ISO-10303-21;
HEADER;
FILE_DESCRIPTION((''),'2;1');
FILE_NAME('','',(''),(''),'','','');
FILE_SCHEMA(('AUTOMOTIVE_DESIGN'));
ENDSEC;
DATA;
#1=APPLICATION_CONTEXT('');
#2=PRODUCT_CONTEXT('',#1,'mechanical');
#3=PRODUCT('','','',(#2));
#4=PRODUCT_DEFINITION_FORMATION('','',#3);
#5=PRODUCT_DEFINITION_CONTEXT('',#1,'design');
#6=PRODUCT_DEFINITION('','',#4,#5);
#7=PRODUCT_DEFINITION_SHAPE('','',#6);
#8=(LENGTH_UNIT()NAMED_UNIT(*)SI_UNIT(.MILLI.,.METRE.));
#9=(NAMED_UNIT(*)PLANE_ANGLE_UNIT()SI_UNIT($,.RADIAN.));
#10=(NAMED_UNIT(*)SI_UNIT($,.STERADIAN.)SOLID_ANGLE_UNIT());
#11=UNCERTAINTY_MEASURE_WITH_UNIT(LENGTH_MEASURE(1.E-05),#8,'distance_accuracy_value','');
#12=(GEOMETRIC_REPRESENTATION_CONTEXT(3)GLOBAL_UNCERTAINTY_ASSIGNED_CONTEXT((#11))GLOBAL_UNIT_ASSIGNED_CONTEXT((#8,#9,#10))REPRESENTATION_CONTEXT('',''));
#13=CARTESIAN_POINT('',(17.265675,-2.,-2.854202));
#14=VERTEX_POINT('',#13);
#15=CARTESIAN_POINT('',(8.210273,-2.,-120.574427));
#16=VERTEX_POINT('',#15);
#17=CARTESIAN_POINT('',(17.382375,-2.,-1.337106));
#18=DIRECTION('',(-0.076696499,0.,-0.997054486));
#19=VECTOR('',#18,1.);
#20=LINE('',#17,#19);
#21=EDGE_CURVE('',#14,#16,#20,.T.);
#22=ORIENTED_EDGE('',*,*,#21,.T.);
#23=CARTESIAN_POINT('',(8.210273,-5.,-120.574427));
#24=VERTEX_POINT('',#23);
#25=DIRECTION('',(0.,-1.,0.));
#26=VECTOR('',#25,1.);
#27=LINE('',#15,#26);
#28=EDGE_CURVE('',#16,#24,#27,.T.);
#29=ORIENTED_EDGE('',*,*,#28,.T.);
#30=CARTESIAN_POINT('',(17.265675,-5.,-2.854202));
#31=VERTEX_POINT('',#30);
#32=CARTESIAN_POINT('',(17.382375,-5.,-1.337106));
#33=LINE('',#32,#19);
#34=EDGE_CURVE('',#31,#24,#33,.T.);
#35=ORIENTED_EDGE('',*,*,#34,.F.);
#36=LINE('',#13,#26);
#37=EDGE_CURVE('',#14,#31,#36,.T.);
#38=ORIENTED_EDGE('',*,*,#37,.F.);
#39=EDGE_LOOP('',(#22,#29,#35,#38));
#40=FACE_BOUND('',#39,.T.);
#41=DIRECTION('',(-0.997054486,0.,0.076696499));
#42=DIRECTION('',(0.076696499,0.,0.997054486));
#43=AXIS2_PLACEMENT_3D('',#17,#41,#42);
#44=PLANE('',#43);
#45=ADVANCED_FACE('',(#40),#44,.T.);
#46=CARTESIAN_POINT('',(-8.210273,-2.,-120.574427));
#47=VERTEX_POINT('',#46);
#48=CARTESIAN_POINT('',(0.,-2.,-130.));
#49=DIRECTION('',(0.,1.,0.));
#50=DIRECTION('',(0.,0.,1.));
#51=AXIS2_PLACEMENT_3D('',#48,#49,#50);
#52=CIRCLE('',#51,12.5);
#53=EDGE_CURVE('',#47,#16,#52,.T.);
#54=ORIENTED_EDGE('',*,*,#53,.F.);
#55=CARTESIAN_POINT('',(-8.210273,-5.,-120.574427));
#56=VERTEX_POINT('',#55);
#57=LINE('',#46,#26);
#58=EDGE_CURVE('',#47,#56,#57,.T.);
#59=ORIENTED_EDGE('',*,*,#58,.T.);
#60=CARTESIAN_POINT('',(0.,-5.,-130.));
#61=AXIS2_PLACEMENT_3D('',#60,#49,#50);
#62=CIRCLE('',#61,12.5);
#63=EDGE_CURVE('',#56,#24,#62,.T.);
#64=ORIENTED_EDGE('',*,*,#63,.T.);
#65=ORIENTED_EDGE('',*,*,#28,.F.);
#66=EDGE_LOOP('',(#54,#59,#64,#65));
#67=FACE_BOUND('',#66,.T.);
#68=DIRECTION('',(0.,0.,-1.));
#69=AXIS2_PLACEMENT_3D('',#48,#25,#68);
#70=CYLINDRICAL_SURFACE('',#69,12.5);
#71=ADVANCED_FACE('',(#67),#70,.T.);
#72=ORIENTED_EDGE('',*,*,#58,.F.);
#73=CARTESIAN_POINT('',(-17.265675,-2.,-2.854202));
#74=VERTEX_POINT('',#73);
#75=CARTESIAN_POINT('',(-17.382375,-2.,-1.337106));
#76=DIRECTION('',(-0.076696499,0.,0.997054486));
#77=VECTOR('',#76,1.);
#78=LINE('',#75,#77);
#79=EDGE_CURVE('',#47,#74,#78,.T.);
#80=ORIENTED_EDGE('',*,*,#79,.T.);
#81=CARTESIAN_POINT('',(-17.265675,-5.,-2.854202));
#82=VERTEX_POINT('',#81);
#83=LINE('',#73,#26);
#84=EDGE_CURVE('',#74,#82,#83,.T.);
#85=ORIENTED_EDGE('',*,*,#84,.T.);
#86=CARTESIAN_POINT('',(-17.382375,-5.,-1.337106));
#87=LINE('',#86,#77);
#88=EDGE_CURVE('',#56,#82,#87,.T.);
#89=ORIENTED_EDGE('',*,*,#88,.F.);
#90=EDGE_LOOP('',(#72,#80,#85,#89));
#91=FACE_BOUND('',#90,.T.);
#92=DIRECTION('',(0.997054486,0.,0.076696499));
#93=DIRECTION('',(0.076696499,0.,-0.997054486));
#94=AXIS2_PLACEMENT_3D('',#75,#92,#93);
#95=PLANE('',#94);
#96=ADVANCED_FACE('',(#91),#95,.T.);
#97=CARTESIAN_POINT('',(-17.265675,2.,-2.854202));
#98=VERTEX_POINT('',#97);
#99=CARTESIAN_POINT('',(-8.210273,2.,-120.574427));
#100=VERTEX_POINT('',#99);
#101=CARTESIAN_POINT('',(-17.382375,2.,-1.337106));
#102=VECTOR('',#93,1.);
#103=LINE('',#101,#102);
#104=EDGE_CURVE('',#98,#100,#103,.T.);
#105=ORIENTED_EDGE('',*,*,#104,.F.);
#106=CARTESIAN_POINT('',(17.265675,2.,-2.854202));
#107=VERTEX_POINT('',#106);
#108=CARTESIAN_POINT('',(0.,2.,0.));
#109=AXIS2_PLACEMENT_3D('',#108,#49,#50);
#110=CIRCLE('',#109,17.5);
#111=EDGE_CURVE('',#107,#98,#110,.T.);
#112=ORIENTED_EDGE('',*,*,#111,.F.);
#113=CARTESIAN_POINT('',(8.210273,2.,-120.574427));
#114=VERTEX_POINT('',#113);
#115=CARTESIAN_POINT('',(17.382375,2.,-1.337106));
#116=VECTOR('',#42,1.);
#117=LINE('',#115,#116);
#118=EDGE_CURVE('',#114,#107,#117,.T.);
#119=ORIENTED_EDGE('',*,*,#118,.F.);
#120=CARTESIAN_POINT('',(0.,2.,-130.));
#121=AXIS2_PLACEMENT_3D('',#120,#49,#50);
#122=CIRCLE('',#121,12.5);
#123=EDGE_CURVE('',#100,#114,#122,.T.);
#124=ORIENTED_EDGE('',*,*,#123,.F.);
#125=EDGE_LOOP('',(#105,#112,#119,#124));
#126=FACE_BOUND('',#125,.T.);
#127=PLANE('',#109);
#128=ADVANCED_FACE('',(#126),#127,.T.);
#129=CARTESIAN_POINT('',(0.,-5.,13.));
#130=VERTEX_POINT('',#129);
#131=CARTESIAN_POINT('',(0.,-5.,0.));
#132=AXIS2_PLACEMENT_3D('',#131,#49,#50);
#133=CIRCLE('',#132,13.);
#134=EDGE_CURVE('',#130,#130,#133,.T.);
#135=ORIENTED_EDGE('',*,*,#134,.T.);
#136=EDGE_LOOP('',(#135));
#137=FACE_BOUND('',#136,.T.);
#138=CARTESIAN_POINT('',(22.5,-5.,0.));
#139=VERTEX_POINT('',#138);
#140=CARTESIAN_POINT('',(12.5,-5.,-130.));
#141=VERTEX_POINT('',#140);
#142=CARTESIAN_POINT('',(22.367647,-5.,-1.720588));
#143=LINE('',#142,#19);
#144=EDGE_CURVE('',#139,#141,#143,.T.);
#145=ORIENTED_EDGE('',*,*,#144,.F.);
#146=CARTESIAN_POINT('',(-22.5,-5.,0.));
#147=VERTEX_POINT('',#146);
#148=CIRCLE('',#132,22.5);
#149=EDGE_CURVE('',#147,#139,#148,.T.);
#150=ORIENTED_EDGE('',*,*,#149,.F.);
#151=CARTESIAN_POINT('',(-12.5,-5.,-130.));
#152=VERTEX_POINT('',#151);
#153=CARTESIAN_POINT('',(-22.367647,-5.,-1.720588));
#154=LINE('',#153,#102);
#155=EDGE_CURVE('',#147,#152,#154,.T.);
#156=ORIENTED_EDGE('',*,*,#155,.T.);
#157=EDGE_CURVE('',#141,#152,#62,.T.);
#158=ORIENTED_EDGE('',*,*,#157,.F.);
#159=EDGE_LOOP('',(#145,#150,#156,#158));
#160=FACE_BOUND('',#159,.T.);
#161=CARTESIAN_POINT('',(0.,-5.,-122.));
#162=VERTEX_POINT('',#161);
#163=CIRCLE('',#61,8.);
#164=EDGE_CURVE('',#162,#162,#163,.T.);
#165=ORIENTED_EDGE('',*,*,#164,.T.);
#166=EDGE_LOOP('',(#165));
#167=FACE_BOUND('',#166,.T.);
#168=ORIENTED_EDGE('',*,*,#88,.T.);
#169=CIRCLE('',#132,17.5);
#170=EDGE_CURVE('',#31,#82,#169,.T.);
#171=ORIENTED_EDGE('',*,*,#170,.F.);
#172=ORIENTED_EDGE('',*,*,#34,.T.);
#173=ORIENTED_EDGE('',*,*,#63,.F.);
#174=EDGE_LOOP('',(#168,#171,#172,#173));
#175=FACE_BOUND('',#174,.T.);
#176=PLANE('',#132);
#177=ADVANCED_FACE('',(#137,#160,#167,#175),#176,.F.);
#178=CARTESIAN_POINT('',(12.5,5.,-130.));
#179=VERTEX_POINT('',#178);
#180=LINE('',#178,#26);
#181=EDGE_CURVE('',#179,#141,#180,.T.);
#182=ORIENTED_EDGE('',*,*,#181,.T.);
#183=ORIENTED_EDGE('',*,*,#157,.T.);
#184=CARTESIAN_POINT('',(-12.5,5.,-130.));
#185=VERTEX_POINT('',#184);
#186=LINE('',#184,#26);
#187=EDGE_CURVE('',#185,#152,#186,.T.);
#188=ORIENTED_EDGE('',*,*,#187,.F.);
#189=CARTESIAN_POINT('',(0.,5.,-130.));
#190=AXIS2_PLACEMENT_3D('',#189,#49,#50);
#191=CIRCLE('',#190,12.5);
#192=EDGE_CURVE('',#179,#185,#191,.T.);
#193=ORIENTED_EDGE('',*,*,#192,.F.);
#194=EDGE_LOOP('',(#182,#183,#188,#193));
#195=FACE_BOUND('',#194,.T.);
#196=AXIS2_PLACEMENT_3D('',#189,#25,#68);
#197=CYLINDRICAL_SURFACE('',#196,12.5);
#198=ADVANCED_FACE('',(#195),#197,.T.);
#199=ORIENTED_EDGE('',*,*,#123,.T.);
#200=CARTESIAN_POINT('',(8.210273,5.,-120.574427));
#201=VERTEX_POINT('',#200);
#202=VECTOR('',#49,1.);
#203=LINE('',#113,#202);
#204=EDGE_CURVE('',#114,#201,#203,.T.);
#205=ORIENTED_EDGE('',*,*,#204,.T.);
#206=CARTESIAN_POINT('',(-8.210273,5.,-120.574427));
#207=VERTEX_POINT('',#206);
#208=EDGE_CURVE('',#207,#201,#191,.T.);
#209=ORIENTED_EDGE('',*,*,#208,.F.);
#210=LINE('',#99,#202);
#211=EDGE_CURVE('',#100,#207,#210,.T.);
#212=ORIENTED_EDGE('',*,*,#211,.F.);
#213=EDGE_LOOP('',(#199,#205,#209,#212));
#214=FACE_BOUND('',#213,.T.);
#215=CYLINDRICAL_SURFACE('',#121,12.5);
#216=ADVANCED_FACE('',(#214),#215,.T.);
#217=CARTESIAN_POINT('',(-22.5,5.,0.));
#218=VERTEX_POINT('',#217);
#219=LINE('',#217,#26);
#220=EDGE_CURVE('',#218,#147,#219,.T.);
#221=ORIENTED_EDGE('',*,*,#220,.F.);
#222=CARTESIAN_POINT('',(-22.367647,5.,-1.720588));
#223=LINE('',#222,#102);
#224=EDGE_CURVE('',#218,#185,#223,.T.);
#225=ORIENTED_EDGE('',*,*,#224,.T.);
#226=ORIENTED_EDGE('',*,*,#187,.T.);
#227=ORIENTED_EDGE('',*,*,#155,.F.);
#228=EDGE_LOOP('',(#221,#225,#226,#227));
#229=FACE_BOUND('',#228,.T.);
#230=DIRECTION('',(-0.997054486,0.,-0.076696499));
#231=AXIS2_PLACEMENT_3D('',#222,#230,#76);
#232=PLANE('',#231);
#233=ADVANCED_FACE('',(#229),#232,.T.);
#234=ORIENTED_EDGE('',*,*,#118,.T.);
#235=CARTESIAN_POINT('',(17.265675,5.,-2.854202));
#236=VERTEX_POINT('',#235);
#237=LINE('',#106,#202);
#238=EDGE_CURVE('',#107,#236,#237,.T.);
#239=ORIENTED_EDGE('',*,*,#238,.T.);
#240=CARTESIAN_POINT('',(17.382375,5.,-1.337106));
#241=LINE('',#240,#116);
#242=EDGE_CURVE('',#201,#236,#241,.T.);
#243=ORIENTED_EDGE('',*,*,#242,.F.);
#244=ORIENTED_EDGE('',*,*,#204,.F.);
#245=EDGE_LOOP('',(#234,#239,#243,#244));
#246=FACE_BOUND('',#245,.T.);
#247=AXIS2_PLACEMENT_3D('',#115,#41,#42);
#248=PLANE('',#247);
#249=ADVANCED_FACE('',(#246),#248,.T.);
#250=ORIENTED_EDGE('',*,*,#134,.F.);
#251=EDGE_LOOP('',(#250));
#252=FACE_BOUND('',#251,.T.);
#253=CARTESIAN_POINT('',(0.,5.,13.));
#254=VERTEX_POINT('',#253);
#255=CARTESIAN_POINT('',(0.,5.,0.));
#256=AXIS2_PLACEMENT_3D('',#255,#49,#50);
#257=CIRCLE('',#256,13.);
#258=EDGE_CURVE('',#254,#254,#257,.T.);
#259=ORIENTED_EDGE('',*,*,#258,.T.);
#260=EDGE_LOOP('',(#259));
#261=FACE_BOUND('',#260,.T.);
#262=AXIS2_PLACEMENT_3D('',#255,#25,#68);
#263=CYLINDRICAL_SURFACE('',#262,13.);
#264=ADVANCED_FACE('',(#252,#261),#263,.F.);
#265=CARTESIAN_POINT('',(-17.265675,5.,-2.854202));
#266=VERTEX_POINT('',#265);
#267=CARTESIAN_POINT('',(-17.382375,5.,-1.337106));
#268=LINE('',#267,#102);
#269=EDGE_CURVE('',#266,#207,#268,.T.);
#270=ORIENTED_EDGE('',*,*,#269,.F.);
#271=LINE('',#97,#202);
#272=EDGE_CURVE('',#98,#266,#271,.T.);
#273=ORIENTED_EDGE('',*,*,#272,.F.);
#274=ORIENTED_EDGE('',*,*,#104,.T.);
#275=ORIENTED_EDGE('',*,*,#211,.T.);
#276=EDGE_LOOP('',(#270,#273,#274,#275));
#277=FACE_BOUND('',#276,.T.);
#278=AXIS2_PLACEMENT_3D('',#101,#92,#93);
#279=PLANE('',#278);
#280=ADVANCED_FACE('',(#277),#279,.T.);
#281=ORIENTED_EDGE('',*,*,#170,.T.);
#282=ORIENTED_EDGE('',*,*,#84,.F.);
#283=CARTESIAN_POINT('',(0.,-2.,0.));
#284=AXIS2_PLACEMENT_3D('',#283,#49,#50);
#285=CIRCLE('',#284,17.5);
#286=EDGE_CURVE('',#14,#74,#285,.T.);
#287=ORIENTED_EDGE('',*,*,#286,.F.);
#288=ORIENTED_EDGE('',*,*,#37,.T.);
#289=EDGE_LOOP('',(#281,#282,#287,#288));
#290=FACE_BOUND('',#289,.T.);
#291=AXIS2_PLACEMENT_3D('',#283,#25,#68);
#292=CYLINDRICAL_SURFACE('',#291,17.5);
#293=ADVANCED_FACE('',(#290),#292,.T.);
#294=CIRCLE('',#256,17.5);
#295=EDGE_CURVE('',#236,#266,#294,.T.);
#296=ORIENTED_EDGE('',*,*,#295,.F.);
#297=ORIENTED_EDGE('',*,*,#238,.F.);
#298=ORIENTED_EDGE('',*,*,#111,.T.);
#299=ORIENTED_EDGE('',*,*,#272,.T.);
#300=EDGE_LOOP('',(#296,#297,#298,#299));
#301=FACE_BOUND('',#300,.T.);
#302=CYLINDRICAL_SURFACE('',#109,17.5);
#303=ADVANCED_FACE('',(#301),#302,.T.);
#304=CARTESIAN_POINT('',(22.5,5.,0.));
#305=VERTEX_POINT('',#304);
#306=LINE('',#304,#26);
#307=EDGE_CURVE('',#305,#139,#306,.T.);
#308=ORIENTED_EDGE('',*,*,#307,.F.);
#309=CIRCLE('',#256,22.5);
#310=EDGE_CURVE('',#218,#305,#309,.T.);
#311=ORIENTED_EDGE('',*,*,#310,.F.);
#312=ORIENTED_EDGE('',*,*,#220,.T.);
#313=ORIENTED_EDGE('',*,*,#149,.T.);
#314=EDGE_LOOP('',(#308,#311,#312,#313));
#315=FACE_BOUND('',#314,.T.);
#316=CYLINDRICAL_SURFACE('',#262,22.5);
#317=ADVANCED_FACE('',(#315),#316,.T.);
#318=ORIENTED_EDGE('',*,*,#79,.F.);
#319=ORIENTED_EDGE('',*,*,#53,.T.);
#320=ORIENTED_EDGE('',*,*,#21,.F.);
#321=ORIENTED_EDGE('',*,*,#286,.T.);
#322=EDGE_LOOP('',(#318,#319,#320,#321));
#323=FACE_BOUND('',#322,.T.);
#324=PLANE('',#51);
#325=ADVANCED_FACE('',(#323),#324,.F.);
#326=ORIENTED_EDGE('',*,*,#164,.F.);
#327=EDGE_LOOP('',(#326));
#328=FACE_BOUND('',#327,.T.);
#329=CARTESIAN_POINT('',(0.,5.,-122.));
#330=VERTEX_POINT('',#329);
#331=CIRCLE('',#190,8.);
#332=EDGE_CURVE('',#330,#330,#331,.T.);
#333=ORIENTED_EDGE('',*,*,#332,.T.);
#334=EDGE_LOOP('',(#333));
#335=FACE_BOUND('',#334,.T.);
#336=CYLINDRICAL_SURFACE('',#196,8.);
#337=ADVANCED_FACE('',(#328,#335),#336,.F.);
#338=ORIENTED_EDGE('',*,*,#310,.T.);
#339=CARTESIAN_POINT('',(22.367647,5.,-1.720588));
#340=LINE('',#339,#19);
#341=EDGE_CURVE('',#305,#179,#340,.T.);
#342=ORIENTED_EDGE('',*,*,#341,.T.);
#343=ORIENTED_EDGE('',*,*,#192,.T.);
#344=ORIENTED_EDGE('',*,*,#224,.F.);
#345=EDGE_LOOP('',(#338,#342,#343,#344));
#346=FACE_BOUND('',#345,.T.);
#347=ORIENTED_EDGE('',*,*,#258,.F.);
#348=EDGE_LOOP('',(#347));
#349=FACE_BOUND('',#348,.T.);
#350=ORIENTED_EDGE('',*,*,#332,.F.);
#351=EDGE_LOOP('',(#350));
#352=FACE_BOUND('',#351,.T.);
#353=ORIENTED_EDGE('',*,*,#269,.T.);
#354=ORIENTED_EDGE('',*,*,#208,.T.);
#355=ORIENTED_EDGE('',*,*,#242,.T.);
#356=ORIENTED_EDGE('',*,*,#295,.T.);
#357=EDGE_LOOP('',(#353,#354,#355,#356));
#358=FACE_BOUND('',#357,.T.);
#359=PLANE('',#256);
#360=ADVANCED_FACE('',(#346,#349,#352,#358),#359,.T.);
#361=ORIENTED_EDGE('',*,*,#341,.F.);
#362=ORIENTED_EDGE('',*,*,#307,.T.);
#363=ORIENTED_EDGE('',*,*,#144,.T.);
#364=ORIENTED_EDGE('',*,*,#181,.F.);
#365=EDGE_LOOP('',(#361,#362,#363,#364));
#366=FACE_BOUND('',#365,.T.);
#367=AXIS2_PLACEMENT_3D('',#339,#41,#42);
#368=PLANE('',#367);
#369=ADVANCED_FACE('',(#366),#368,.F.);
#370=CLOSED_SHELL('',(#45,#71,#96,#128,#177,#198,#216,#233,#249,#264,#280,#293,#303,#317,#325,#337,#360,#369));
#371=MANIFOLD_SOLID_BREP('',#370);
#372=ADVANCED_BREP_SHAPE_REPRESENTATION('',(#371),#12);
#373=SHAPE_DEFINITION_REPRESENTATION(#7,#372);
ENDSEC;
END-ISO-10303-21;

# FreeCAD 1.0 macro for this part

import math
import FreeCAD as App
import Part
import Sketcher
from FreeCAD import Vector
Q = App.Units.Quantity

doc = App.newDocument("Part")
body = doc.addObject("PartDesign::Body", "Body")

# Sketch on XZ plane
sketch1 = body.newObject("Sketcher::SketchObject", "Sketch")
sketch1.AttachmentSupport = (doc.getObject("XZ_Plane"), [""])
sketch1.MapMode = "FlatFace"
sketch1.addGeometry(Part.LineSegment(Vector(22, 0, 0), Vector(12, -130, 0)), False)
sketch1.addGeometry(Part.ArcOfCircle(Part.Circle(Vector(0, -130, 0), Vector(0, 0, 1), 12), math.radians(180), math.radians(360)), False)
sketch1.addGeometry(Part.LineSegment(Vector(-12, -130, 0), Vector(-22, 0, 0)), False)
sketch1.addGeometry(Part.ArcOfCircle(Part.Circle(Vector(0, 0, 0), Vector(0, 0, 1), 22), math.radians(0), math.radians(180)), False)
sketch1.addGeometry(Part.Circle(Vector(0, 0, 0), Vector(0, 0, 1), 13), False)
sketch1.addGeometry(Part.Circle(Vector(0, -130, 0), Vector(0, 0, 1), 8), False)
sketch1.addConstraint(Sketcher.Constraint("Coincident", 0, 2, 1, 2))
sketch1.addConstraint(Sketcher.Constraint("Coincident", 1, 1, 2, 1))
sketch1.addConstraint(Sketcher.Constraint("Coincident", 2, 2, 3, 2))
sketch1.addConstraint(Sketcher.Constraint("Coincident", 3, 1, 0, 1))
sketch1.addConstraint(Sketcher.Constraint("Coincident", 3, 3, -1, 1))
sketch1.addConstraint(Sketcher.Constraint("Coincident", 4, 3, -1, 1))
sketch1.addConstraint(Sketcher.Constraint("Coincident", 5, 3, 1, 3))
sketch1.addConstraint(Sketcher.Constraint("Symmetric", 0, 2, 1, 1, -2))
sketch1.addConstraint(Sketcher.Constraint("PointOnObject", 2, 2, -1))
sketch1.addConstraint(Sketcher.Constraint("PointOnObject", 3, 1, -1))
sketch1.addConstraint(Sketcher.Constraint("Horizontal", 5, 3, 0, 2))
sketch1.addConstraint(Sketcher.Constraint("Diameter", 4, Q("26 mm")))
sketch1.addConstraint(Sketcher.Constraint("Diameter", 5, Q("16 mm")))
sketch1.addConstraint(Sketcher.Constraint("Radius", 1, Q("12.5 mm")))
sketch1.addConstraint(Sketcher.Constraint("Radius", 3, Q("22.5 mm")))
sketch1.addConstraint(Sketcher.Constraint("DistanceY", 1, 3, -1, 1, Q("130 mm")))
pad1 = body.newObject("PartDesign::Pad", "Pad")
pad1.Profile = sketch1
pad1.Length = 10
pad1.Midplane = True

# Sketch on XZ plane
sketch2 = body.newObject("Sketcher::SketchObject", "Sketch001")
sketch2.AttachmentSupport = (doc.getObject("XZ_Plane"), [""])
sketch2.MapMode = "FlatFace"
sketch2.AttachmentOffset = App.Placement(Vector(0, 0, 5), App.Rotation())
sketch2.addGeometry(Part.LineSegment(Vector(-8, -121, 0), Vector(-17, -3, 0)), False)
sketch2.addGeometry(Part.ArcOfCircle(Part.Circle(Vector(0, 0, 0), Vector(0, 0, 1), 18), math.radians(-171), math.radians(-9)), False)
sketch2.addGeometry(Part.LineSegment(Vector(17, -3, 0), Vector(8, -121, 0)), False)
sketch2.addGeometry(Part.ArcOfCircle(Part.Circle(Vector(0, -130, 0), Vector(0, 0, 1), 12), math.radians(49), math.radians(131)), False)
sketch2.addConstraint(Sketcher.Constraint("Coincident", 0, 2, 1, 1))
sketch2.addConstraint(Sketcher.Constraint("Coincident", 1, 2, 2, 1))
sketch2.addConstraint(Sketcher.Constraint("Coincident", 2, 2, 3, 1))
sketch2.addConstraint(Sketcher.Constraint("Coincident", 3, 2, 0, 1))
sketch2.addConstraint(Sketcher.Constraint("Coincident", 1, 3, -1, 1))
sketch2.addConstraint(Sketcher.Constraint("Symmetric", 2, 2, 3, 2, -2))
sketch2.addConstraint(Sketcher.Constraint("Horizontal", 0, 2, 1, 2))
sketch2.addConstraint(Sketcher.Constraint("Radius", 1, Q("17.5 mm")))
sketch2.addConstraint(Sketcher.Constraint("Radius", 3, Q("12.5 mm")))
sketch2.addConstraint(Sketcher.Constraint("DistanceY", 3, 3, -1, 1, Q("130 mm")))
sketch2.addConstraint(Sketcher.Constraint("DistanceX", 2, 2, 1, 2, Q("9.055402 mm")))
sketch2.addConstraint(Sketcher.Constraint("DistanceX", 0, 2, 1, 2, Q("34.53135 mm")))
pocket1 = body.newObject("PartDesign::Pocket", "Pocket")
pocket1.Profile = sketch2
pocket1.Length = 3

# Sketch on XZ plane
sketch3 = body.newObject("Sketcher::SketchObject", "Sketch002")
sketch3.AttachmentSupport = (doc.getObject("XZ_Plane"), [""])
sketch3.MapMode = "FlatFace"
sketch3.AttachmentOffset = App.Placement(Vector(0, 0, -2), App.Rotation())
sketch3.addGeometry(Part.LineSegment(Vector(-8, -121, 0), Vector(-17, -3, 0)), False)
sketch3.addGeometry(Part.ArcOfCircle(Part.Circle(Vector(0, 0, 0), Vector(0, 0, 1), 18), math.radians(-171), math.radians(-9)), False)
sketch3.addGeometry(Part.LineSegment(Vector(17, -3, 0), Vector(8, -121, 0)), False)
sketch3.addGeometry(Part.ArcOfCircle(Part.Circle(Vector(0, -130, 0), Vector(0, 0, 1), 12), math.radians(49), math.radians(131)), False)
sketch3.addConstraint(Sketcher.Constraint("Coincident", 0, 2, 1, 1))
sketch3.addConstraint(Sketcher.Constraint("Coincident", 1, 2, 2, 1))
sketch3.addConstraint(Sketcher.Constraint("Coincident", 2, 2, 3, 1))
sketch3.addConstraint(Sketcher.Constraint("Coincident", 3, 2, 0, 1))
sketch3.addConstraint(Sketcher.Constraint("Coincident", 1, 3, -1, 1))
sketch3.addConstraint(Sketcher.Constraint("Symmetric", 2, 2, 3, 2, -2))
sketch3.addConstraint(Sketcher.Constraint("Horizontal", 0, 2, 1, 2))
sketch3.addConstraint(Sketcher.Constraint("Radius", 1, Q("17.5 mm")))
sketch3.addConstraint(Sketcher.Constraint("Radius", 3, Q("12.5 mm")))
sketch3.addConstraint(Sketcher.Constraint("DistanceY", 3, 3, -1, 1, Q("130 mm")))
sketch3.addConstraint(Sketcher.Constraint("DistanceX", 2, 2, 1, 2, Q("9.055402 mm")))
sketch3.addConstraint(Sketcher.Constraint("DistanceX", 0, 2, 1, 2, Q("34.53135 mm")))
pocket2 = body.newObject("PartDesign::Pocket", "Pocket001")
pocket2.Profile = sketch3
pocket2.Length = 3

doc.recompute()
